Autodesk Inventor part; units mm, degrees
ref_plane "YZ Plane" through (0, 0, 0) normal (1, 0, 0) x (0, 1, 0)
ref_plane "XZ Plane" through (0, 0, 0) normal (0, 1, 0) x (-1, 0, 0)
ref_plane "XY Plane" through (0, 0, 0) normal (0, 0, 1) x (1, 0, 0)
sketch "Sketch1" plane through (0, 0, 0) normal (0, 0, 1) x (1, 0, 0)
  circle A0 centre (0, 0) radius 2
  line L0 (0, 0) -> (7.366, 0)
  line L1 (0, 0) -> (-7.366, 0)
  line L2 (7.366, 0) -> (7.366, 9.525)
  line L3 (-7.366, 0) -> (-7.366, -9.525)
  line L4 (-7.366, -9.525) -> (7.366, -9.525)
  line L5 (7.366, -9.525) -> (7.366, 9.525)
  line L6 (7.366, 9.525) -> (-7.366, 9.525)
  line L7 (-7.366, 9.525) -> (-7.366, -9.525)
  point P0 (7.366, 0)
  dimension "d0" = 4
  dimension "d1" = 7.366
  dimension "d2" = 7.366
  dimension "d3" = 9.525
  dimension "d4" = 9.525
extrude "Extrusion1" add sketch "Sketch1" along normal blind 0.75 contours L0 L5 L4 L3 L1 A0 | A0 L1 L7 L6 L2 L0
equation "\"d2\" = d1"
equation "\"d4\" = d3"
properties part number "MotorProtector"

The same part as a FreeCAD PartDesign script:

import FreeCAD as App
import Part
import Sketcher

V = App.Vector
Q = App.Units.Quantity

doc = App.newDocument("Part")
params = doc.addObject("Spreadsheet::Sheet", "Params")
for row, (alias, value) in enumerate([
    ("pad1_length", "0.75 mm"),
], start=1):
    params.set(f"A{row}", alias)
    params.set(f"B{row}", "=" + value)
    params.setAlias(f"B{row}", alias)

body = doc.addObject("PartDesign::Body", "Body")

# Sketch on XY plane
sketch1 = body.newObject("Sketcher::SketchObject", "Sketch")
sketch1.AttachmentSupport = (doc.getObject("XY_Plane"), [""])
sketch1.MapMode = "FlatFace"
sketch1.addGeometry([
    Part.LineSegment(V(7.4, -9.5, 0), V(7.4, 9.5, 0)),  # 0
    Part.LineSegment(V(7.4, 9.5, 0), V(-7.4, 9.5, 0)),  # 1
    Part.LineSegment(V(-7.4, 9.5, 0), V(-7.4, -9.5, 0)),  # 2
    Part.LineSegment(V(-7.4, -9.5, 0), V(7.4, -9.5, 0)),  # 3
    Part.Circle(V(0, 0, 0), V(0, 0, 1), 2),  # 4
], False)
sketch1.addConstraint([
    Sketcher.Constraint("Coincident", 0, 2, 1, 1),
    Sketcher.Constraint("Coincident", 1, 2, 2, 1),
    Sketcher.Constraint("Coincident", 2, 2, 3, 1),
    Sketcher.Constraint("Coincident", 3, 2, 0, 1),
    Sketcher.Constraint("Vertical", 0),
    Sketcher.Constraint("Horizontal", 1),
    Sketcher.Constraint("Vertical", 2),
    Sketcher.Constraint("Horizontal", 3),
    Sketcher.Constraint("Coincident", 4, 3, -1, 1),
    Sketcher.Constraint("Symmetric", 0, 2, 2, 2, -1, 1),
    Sketcher.Constraint("Diameter", 4, 4.0),
    Sketcher.Constraint("DistanceX", -1, 1, 0, 2, Q("0.29 in")),
    Sketcher.Constraint("DistanceY", -1, 1, 0, 2, Q("0.375 in")),
])
pad1 = body.newObject("PartDesign::Pad", "Pad")
pad1.Profile = sketch1
pad1.setExpression("Length", "Params.pad1_length")

doc.recompute()
